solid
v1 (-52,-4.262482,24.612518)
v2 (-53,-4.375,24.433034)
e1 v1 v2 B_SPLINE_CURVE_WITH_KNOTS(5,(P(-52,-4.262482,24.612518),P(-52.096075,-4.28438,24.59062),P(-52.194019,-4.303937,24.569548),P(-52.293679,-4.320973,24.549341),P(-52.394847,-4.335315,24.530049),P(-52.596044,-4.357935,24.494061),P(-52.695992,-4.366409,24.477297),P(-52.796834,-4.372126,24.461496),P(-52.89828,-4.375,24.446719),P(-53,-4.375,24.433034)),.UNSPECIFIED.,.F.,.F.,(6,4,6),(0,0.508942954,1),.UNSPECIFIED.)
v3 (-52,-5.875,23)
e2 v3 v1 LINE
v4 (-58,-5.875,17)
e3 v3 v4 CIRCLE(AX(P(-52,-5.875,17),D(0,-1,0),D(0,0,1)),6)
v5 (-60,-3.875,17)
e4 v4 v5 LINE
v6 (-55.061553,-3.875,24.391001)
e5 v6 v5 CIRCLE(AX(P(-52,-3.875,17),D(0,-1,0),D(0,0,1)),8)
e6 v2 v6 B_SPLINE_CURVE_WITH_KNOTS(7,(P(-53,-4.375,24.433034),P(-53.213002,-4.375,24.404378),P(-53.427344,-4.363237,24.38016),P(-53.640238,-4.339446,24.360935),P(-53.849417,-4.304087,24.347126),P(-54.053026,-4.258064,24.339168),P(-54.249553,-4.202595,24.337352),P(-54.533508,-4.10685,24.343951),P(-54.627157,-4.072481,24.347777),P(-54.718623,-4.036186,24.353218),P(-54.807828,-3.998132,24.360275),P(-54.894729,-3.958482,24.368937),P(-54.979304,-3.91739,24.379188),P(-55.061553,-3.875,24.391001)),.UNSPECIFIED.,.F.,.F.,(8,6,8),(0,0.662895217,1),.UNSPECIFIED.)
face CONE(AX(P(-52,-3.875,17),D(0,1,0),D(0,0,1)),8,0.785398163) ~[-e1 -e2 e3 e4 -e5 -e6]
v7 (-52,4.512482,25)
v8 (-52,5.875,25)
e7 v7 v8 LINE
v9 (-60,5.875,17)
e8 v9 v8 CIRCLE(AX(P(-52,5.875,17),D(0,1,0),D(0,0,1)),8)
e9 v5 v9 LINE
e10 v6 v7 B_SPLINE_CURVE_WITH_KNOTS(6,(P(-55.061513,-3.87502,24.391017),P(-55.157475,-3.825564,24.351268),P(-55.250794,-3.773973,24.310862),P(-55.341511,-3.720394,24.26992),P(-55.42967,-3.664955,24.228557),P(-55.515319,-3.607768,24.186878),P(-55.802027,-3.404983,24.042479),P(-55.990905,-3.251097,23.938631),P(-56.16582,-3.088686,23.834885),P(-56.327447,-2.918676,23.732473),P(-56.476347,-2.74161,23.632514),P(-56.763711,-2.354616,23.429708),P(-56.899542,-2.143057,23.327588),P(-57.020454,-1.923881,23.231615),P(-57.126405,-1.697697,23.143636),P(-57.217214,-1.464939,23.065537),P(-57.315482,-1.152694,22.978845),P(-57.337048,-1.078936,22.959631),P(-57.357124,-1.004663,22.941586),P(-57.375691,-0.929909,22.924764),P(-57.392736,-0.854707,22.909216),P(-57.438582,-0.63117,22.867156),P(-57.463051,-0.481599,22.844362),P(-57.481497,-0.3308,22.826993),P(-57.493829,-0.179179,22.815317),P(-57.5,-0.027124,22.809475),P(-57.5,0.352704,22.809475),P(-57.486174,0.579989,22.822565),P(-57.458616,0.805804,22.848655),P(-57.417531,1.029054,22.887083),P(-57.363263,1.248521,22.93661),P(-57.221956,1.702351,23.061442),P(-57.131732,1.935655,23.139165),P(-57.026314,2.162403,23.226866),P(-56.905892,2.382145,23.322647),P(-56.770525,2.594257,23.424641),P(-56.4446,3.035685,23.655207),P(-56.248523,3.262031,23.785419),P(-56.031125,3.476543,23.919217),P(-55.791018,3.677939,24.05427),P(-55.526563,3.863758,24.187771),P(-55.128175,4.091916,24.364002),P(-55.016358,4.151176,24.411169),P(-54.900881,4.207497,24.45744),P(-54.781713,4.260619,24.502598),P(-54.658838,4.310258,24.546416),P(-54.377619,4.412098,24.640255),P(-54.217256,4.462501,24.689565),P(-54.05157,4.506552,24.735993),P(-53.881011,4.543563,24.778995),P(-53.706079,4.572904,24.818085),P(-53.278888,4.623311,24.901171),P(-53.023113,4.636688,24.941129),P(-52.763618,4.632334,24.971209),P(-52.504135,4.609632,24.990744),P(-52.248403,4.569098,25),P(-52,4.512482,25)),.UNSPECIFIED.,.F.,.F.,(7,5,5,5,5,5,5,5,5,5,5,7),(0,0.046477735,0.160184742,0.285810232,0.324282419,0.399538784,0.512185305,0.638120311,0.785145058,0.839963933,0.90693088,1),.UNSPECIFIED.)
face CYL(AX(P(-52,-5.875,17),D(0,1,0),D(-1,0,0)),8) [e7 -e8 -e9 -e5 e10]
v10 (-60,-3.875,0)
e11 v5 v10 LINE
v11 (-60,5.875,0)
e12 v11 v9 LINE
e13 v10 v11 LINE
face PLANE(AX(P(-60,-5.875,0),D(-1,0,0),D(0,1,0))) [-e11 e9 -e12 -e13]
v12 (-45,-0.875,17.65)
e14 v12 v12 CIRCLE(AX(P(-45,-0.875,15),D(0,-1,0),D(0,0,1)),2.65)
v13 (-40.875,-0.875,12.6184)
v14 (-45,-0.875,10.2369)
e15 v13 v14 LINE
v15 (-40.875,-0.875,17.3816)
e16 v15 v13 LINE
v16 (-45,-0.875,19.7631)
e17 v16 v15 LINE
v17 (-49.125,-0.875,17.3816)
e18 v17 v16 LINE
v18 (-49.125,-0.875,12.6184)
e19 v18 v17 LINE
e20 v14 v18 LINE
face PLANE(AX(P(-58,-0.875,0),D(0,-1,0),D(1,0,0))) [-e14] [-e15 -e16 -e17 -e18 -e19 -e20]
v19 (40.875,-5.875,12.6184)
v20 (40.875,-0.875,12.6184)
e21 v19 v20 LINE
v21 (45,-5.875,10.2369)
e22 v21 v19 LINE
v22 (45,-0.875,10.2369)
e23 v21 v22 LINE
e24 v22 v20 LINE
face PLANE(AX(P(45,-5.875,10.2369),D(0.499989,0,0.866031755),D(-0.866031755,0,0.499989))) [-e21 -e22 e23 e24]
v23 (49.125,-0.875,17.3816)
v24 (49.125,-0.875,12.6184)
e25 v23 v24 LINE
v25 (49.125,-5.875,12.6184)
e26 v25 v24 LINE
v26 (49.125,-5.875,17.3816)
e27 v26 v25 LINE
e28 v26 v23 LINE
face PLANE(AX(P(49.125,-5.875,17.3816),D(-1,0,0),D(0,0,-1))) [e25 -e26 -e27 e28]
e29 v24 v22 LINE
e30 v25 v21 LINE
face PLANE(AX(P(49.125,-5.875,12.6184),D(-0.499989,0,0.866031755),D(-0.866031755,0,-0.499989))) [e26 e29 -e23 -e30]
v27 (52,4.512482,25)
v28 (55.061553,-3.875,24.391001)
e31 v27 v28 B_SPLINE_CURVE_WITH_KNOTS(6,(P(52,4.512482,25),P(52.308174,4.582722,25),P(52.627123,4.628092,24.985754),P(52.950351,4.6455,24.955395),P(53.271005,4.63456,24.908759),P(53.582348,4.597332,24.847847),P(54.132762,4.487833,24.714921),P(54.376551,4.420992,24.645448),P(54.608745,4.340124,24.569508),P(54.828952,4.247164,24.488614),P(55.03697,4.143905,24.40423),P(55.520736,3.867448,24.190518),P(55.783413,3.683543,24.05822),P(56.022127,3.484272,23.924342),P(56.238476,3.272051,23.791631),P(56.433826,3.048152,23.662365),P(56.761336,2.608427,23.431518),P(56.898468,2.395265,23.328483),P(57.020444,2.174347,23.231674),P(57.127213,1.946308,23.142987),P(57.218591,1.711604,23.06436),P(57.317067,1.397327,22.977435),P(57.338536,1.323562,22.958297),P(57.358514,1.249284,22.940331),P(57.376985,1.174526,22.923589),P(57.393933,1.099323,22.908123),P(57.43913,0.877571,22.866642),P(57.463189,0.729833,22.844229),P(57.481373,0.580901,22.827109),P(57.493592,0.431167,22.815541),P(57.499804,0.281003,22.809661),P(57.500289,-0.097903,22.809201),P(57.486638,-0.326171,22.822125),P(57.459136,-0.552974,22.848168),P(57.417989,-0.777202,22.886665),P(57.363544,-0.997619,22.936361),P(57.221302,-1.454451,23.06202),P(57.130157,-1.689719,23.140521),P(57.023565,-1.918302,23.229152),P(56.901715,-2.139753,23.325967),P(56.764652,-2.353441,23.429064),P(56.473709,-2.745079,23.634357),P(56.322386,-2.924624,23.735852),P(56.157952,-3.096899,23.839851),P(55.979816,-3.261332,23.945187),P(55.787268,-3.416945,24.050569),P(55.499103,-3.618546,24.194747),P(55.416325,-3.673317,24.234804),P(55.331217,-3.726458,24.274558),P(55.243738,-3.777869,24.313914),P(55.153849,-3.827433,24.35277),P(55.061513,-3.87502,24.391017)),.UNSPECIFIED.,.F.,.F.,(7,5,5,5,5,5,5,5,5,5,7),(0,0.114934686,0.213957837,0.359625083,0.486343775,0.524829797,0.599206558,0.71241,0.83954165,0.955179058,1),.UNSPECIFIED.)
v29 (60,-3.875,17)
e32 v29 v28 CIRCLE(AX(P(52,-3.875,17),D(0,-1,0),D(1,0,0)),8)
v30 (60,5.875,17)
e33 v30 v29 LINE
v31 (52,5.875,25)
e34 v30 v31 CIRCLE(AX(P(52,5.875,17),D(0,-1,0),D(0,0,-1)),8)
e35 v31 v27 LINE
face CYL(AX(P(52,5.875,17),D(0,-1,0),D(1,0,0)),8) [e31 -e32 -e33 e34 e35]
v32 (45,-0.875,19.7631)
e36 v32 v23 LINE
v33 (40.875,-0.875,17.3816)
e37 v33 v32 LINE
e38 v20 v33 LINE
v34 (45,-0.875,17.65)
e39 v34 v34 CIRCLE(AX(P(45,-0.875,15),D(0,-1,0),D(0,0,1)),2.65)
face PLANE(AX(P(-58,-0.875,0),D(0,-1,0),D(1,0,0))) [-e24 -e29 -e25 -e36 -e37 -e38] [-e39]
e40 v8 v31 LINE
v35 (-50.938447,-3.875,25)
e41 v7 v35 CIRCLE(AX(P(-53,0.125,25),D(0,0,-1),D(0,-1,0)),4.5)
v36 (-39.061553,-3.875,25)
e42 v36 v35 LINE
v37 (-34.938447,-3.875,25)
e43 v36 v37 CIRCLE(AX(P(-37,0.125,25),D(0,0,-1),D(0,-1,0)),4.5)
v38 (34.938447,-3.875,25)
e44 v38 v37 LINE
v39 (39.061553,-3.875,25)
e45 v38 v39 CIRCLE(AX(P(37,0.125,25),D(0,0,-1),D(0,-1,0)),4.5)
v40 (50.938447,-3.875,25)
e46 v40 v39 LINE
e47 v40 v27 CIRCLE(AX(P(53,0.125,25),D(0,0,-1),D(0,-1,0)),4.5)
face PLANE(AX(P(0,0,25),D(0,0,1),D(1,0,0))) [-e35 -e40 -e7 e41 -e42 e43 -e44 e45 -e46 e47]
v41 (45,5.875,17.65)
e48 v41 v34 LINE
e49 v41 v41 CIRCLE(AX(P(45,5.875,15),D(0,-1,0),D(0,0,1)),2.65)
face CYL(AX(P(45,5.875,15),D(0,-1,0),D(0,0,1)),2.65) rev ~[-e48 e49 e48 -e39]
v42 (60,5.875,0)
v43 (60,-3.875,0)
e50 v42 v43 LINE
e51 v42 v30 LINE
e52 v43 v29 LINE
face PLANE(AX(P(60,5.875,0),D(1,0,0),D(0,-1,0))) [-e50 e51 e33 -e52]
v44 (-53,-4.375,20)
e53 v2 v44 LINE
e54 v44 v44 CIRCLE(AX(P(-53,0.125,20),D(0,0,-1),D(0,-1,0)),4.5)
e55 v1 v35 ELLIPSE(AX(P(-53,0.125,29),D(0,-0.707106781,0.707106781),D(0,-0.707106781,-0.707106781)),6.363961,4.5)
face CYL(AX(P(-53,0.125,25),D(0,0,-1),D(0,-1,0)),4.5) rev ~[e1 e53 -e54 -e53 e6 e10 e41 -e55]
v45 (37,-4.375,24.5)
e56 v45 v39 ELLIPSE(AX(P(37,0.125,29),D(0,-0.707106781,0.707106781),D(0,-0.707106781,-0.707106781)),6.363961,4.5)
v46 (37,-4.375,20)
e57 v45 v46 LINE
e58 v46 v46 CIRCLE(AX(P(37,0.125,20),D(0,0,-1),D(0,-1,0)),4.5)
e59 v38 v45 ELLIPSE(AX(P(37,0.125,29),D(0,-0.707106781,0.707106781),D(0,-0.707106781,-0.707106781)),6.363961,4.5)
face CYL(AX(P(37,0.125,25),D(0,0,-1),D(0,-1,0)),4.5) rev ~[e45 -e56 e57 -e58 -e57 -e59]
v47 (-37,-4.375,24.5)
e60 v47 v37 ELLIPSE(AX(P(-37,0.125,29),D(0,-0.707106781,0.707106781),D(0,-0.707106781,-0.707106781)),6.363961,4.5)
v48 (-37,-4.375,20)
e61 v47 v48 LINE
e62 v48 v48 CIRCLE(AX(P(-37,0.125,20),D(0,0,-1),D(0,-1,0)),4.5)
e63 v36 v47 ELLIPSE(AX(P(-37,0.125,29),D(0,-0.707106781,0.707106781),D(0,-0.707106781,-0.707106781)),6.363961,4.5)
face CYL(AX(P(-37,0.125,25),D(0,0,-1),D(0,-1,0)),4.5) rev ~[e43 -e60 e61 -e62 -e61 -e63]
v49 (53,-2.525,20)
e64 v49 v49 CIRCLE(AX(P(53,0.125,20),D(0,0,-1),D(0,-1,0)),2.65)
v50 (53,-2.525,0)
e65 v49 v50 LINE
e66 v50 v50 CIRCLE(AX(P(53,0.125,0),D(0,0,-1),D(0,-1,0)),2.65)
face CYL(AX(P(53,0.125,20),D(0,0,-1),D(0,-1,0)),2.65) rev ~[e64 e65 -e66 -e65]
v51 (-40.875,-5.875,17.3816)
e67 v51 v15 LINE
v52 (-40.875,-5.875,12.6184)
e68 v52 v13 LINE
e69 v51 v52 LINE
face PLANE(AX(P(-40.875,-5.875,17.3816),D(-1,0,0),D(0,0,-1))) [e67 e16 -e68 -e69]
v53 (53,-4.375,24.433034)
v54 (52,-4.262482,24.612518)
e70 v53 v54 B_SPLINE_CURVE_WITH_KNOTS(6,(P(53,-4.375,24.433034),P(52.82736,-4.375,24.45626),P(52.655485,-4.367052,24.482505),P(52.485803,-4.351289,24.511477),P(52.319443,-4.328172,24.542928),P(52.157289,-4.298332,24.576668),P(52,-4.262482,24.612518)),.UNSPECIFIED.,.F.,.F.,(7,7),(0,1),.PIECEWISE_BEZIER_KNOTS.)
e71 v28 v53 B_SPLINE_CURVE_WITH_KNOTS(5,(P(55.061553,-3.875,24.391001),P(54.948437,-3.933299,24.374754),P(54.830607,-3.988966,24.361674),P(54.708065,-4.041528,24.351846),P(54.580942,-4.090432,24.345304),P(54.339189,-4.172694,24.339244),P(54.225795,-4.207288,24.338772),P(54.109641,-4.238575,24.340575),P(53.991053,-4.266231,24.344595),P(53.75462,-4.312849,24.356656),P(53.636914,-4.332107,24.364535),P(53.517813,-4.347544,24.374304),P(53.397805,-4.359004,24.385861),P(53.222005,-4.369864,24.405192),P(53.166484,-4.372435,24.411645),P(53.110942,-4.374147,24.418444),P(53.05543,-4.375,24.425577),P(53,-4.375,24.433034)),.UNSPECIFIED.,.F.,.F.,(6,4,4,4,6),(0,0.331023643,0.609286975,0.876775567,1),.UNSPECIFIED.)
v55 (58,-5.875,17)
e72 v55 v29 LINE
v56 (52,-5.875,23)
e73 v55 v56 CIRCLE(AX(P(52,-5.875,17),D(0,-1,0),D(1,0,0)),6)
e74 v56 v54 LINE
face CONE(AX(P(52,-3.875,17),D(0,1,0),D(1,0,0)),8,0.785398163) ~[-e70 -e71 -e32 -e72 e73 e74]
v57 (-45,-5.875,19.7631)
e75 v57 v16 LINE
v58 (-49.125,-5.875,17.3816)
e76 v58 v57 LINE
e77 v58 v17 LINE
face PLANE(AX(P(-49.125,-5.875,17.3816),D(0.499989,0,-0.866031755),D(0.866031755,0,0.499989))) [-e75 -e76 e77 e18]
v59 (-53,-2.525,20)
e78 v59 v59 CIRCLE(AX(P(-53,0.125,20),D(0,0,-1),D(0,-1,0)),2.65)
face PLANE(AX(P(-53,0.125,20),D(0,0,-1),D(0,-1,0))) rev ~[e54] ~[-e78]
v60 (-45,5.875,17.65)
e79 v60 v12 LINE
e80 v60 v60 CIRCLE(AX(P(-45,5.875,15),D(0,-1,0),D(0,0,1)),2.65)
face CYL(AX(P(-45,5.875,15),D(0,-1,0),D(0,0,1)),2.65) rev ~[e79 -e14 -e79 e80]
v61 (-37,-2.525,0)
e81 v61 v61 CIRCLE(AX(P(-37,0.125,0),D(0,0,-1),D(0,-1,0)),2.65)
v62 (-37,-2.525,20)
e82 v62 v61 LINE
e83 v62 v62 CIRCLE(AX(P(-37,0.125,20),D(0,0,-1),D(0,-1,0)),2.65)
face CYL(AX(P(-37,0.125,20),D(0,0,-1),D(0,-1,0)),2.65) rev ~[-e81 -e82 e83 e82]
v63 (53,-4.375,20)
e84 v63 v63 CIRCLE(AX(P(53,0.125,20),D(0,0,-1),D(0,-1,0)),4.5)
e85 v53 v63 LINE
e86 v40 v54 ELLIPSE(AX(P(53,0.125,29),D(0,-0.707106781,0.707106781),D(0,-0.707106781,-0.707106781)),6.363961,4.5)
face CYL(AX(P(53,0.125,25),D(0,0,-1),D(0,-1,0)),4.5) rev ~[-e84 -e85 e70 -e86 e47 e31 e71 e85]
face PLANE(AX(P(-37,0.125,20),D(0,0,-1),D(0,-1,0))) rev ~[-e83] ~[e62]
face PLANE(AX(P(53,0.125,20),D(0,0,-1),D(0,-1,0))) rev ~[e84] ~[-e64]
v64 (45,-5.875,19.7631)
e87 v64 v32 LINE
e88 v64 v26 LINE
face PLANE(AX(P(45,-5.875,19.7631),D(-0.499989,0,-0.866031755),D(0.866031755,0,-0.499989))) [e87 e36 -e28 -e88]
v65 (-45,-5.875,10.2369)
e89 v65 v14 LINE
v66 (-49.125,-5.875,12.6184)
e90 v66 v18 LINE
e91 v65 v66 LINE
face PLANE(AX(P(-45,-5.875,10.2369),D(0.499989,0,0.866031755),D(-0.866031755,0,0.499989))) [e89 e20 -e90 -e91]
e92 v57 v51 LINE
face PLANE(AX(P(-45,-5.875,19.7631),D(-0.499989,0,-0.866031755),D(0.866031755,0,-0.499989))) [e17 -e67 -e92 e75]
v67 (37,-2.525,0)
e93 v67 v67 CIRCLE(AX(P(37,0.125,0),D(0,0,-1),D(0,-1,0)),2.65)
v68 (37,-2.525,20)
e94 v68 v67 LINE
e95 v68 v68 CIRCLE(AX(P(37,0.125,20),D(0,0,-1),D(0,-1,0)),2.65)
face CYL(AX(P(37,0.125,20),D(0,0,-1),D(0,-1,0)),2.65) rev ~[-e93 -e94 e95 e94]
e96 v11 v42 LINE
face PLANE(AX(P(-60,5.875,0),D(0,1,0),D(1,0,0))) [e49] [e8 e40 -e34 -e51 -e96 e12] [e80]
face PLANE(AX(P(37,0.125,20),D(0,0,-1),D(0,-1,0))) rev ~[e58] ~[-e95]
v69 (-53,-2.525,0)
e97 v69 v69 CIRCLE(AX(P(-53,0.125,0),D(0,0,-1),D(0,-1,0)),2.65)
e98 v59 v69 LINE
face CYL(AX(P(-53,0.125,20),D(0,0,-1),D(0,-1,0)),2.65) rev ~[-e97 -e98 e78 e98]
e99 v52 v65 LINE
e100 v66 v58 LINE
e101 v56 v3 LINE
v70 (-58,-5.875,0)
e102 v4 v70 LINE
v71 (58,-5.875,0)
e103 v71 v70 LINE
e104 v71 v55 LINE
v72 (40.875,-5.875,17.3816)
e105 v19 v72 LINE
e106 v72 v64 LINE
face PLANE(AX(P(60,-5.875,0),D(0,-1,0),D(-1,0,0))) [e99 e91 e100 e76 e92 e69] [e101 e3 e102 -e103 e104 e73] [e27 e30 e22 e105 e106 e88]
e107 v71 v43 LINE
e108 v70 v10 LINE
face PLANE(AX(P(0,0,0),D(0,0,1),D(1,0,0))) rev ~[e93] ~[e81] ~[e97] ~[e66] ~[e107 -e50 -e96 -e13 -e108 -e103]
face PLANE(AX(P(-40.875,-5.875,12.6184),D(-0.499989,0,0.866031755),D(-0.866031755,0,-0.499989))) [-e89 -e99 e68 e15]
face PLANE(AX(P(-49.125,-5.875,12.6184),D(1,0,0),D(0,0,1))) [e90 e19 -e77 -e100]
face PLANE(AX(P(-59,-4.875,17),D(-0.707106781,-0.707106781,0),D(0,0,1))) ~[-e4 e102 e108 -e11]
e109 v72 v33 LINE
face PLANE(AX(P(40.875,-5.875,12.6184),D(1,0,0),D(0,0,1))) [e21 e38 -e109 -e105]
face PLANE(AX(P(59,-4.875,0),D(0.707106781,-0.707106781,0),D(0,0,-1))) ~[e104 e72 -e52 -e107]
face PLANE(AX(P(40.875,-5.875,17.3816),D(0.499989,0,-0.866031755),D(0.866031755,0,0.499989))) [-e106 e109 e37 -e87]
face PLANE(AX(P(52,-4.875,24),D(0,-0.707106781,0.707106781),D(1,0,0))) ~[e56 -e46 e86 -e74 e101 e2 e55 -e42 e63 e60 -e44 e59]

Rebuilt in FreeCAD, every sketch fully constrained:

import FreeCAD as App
import Part
import Sketcher

V = App.Vector
Q = App.Units.Quantity


def edges_at(feature, points):
    """Names of the edges that pass closest to the given points."""
    edges = feature.Shape.Edges
    near = lambda p: min(range(len(edges)), key=lambda i: edges[i].distToShape(Part.Vertex(*p))[0])
    return sorted({f"Edge{near(p) + 1}" for p in points})

doc = App.newDocument("Part")
body = doc.addObject("PartDesign::Body", "Body")

# Sketch on XY plane
sketch1 = body.newObject("Sketcher::SketchObject", "Sketch")
sketch1.AttachmentSupport = (doc.getObject("XY_Plane"), [""])
sketch1.MapMode = "FlatFace"
sketch1.addGeometry(Part.LineSegment(V(-60, -6, 0), V(60, -6, 0)), False)
sketch1.addGeometry(Part.LineSegment(V(60, -6, 0), V(60, 6, 0)), False)
sketch1.addGeometry(Part.LineSegment(V(60, 6, 0), V(-60, 6, 0)), False)
sketch1.addGeometry(Part.LineSegment(V(-60, 6, 0), V(-60, -6, 0)), False)
sketch1.addConstraint(Sketcher.Constraint("Coincident", 0, 2, 1, 1))
sketch1.addConstraint(Sketcher.Constraint("Coincident", 1, 2, 2, 1))
sketch1.addConstraint(Sketcher.Constraint("Coincident", 2, 2, 3, 1))
sketch1.addConstraint(Sketcher.Constraint("Coincident", 3, 2, 0, 1))
sketch1.addConstraint(Sketcher.Constraint("Horizontal", 0))
sketch1.addConstraint(Sketcher.Constraint("Vertical", 1))
sketch1.addConstraint(Sketcher.Constraint("Horizontal", 2))
sketch1.addConstraint(Sketcher.Constraint("Vertical", 3))
sketch1.addConstraint(Sketcher.Constraint("Symmetric", 0, 2, 2, 2, -1, 1))
sketch1.addConstraint(Sketcher.Constraint("DistanceX", 0, 1, 0, 2, 120.0))
sketch1.addConstraint(Sketcher.Constraint("DistanceY", 1, 1, 1, 2, 11.75))
pad1 = body.newObject("PartDesign::Pad", "Pad")
pad1.Profile = sketch1
pad1.Length = 25
doc.recompute()

fillet = body.newObject("PartDesign::Fillet", "Fillet")
fillet.Base = (pad1, edges_at(pad1, [(60, 0, 25), (-60, 0, 25)]))
fillet.Radius = 8
doc.recompute()

chamfer = body.newObject("PartDesign::Chamfer", "Chamfer")
chamfer.Base = (fillet, edges_at(fillet, [
    (60, -5.875, 8.5),
    (57.657, -5.875, 22.657),
    (0, -5.875, 25),
    (-57.657, -5.875, 22.657),
    (-60, -5.875, 8.5),
]))
chamfer.Size = 2

# Sketch on XY plane
sketch2 = body.newObject("Sketcher::SketchObject", "Sketch001")
sketch2.AttachmentSupport = (doc.getObject("XY_Plane"), [""])
sketch2.MapMode = "FlatFace"
sketch2.AttachmentOffset = App.Placement(V(0, 0, 25), App.Rotation())
sketch2.addGeometry(Part.Circle(V(-53, 0.1, 0), V(0, 0, 1), 2.6), False)
sketch2.addGeometry(Part.Circle(V(-37, 0.1, 0), V(0, 0, 1), 2.6), False)
sketch2.addGeometry(Part.Circle(V(37, 0.1, 0), V(0, 0, 1), 2.6), False)
sketch2.addGeometry(Part.Circle(V(53, 0.1, 0), V(0, 0, 1), 2.6), False)
sketch2.addConstraint(Sketcher.Constraint("Equal", 0, 1))
sketch2.addConstraint(Sketcher.Constraint("Equal", 1, 2))
sketch2.addConstraint(Sketcher.Constraint("Equal", 2, 3))
sketch2.addConstraint(Sketcher.Constraint("Symmetric", 1, 3, 2, 3, -2))
sketch2.addConstraint(Sketcher.Constraint("Symmetric", 0, 3, 3, 3, -2))
sketch2.addConstraint(Sketcher.Constraint("Horizontal", 0, 3, 1, 3))
sketch2.addConstraint(Sketcher.Constraint("Diameter", 0, 5.3))
sketch2.addConstraint(Sketcher.Constraint("DistanceX", 0, 3, -1, 1, 53.0))
sketch2.addConstraint(Sketcher.Constraint("DistanceX", 1, 3, -1, 1, 37.0))
sketch2.addConstraint(Sketcher.Constraint("DistanceY", -1, 1, 0, 3, 0.125))
doc.recompute()
hole = body.newObject("PartDesign::Hole", "Hole")
hole.Profile = sketch2
hole.ThreadType = "None"
hole.Diameter = 5.3
hole.DepthType = "ThroughAll"
hole.HoleCutType = "Counterbore"
hole.HoleCutDiameter = 9
hole.HoleCutDepth = 5

# Sketch on XZ plane
sketch3 = body.newObject("Sketcher::SketchObject", "Sketch002")
sketch3.AttachmentSupport = (doc.getObject("XZ_Plane"), [""])
sketch3.MapMode = "FlatFace"
sketch3.AttachmentOffset = App.Placement(V(0, 0, -5.875), App.Rotation())
sketch3.addGeometry(Part.Circle(V(45, 15, 0), V(0, 0, 1), 2.6), False)
sketch3.addGeometry(Part.Circle(V(-45, 15, 0), V(0, 0, 1), 2.6), False)
sketch3.addConstraint(Sketcher.Constraint("Equal", 0, 1))
sketch3.addConstraint(Sketcher.Constraint("Symmetric", 0, 3, 1, 3, -2))
sketch3.addConstraint(Sketcher.Constraint("Diameter", 0, 5.3))
sketch3.addConstraint(Sketcher.Constraint("DistanceX", -1, 1, 0, 3, 45.0))
sketch3.addConstraint(Sketcher.Constraint("DistanceY", -1, 1, 0, 3, 15.0))
doc.recompute()
hole2 = body.newObject("PartDesign::Hole", "Hole001")
hole2.Profile = sketch3
hole2.ThreadType = "None"
hole2.Diameter = 5.3
hole2.DepthType = "ThroughAll"
hole2.Reversed = True

# Sketch on XZ plane
sketch4 = body.newObject("Sketcher::SketchObject", "Sketch003")
sketch4.AttachmentSupport = (doc.getObject("XZ_Plane"), [""])
sketch4.MapMode = "FlatFace"
sketch4.AttachmentOffset = App.Placement(V(0, 0, 5.875), App.Rotation())
sketch4.addGeometry(Part.LineSegment(V(-45, 19.8, 0), V(-49.1, 17.4, 0)), False)
sketch4.addGeometry(Part.LineSegment(V(-49.1, 17.4, 0), V(-49.1, 12.6, 0)), False)
sketch4.addGeometry(Part.LineSegment(V(-49.1, 12.6, 0), V(-45, 10.2, 0)), False)
sketch4.addGeometry(Part.LineSegment(V(-45, 10.2, 0), V(-40.9, 12.6, 0)), False)
sketch4.addGeometry(Part.LineSegment(V(-40.9, 12.6, 0), V(-40.9, 17.4, 0)), False)
sketch4.addGeometry(Part.LineSegment(V(-40.9, 17.4, 0), V(-45, 19.8, 0)), False)
sketch4.addGeometry(Part.LineSegment(V(45, 10.2, 0), V(49.1, 12.6, 0)), False)
sketch4.addGeometry(Part.LineSegment(V(49.1, 12.6, 0), V(49.1, 17.4, 0)), False)
sketch4.addGeometry(Part.LineSegment(V(49.1, 17.4, 0), V(45, 19.8, 0)), False)
sketch4.addGeometry(Part.LineSegment(V(45, 19.8, 0), V(40.9, 17.4, 0)), False)
sketch4.addGeometry(Part.LineSegment(V(40.9, 17.4, 0), V(40.9, 12.6, 0)), False)
sketch4.addGeometry(Part.LineSegment(V(40.9, 12.6, 0), V(45, 10.2, 0)), False)
sketch4.addConstraint(Sketcher.Constraint("Coincident", 0, 2, 1, 1))
sketch4.addConstraint(Sketcher.Constraint("Coincident", 1, 2, 2, 1))
sketch4.addConstraint(Sketcher.Constraint("Coincident", 2, 2, 3, 1))
sketch4.addConstraint(Sketcher.Constraint("Coincident", 3, 2, 4, 1))
sketch4.addConstraint(Sketcher.Constraint("Coincident", 4, 2, 5, 1))
sketch4.addConstraint(Sketcher.Constraint("Coincident", 5, 2, 0, 1))
sketch4.addConstraint(Sketcher.Constraint("Coincident", 6, 2, 7, 1))
sketch4.addConstraint(Sketcher.Constraint("Coincident", 7, 2, 8, 1))
sketch4.addConstraint(Sketcher.Constraint("Coincident", 8, 2, 9, 1))
sketch4.addConstraint(Sketcher.Constraint("Coincident", 9, 2, 10, 1))
sketch4.addConstraint(Sketcher.Constraint("Coincident", 10, 2, 11, 1))
sketch4.addConstraint(Sketcher.Constraint("Coincident", 11, 2, 6, 1))
sketch4.addConstraint(Sketcher.Constraint("Vertical", 1))
sketch4.addConstraint(Sketcher.Constraint("Vertical", 4))
sketch4.addConstraint(Sketcher.Constraint("Vertical", 7))
sketch4.addConstraint(Sketcher.Constraint("Vertical", 10))
sketch4.addConstraint(Sketcher.Constraint("Symmetric", 1, 2, 6, 2, -2))
sketch4.addConstraint(Sketcher.Constraint("Symmetric", 5, 2, 8, 2, -2))
sketch4.addConstraint(Sketcher.Constraint("Symmetric", 4, 2, 9, 2, -2))
sketch4.addConstraint(Sketcher.Constraint("Symmetric", 2, 2, 11, 2, -2))
sketch4.addConstraint(Sketcher.Constraint("Parallel", 0, 3))
sketch4.addConstraint(Sketcher.Constraint("Parallel", 2, 5))
sketch4.addConstraint(Sketcher.Constraint("Parallel", 3, 6))
sketch4.addConstraint(Sketcher.Constraint("Parallel", 5, 8))
sketch4.addConstraint(Sketcher.Constraint("Parallel", 8, 11))
sketch4.addConstraint(Sketcher.Constraint("Horizontal", 1, 2, 3, 2))
sketch4.addConstraint(Sketcher.Constraint("Horizontal", 0, 2, 4, 2))
sketch4.addConstraint(Sketcher.Constraint("Angle", 0, Q("-150.0007 deg")))
sketch4.addConstraint(Sketcher.Constraint("DistanceX", 1, 2, 3, 2, 8.25))
sketch4.addConstraint(Sketcher.Constraint("DistanceX", 2, 2, -1, 1, 45.0))
sketch4.addConstraint(Sketcher.Constraint("DistanceY", 1, 2, 1, 1, 4.7632))
sketch4.addConstraint(Sketcher.Constraint("DistanceY", -1, 1, 2, 2, 10.237))
pocket1 = body.newObject("PartDesign::Pocket", "Pocket")
pocket1.Profile = sketch4
pocket1.Length = 5

doc.recompute()
